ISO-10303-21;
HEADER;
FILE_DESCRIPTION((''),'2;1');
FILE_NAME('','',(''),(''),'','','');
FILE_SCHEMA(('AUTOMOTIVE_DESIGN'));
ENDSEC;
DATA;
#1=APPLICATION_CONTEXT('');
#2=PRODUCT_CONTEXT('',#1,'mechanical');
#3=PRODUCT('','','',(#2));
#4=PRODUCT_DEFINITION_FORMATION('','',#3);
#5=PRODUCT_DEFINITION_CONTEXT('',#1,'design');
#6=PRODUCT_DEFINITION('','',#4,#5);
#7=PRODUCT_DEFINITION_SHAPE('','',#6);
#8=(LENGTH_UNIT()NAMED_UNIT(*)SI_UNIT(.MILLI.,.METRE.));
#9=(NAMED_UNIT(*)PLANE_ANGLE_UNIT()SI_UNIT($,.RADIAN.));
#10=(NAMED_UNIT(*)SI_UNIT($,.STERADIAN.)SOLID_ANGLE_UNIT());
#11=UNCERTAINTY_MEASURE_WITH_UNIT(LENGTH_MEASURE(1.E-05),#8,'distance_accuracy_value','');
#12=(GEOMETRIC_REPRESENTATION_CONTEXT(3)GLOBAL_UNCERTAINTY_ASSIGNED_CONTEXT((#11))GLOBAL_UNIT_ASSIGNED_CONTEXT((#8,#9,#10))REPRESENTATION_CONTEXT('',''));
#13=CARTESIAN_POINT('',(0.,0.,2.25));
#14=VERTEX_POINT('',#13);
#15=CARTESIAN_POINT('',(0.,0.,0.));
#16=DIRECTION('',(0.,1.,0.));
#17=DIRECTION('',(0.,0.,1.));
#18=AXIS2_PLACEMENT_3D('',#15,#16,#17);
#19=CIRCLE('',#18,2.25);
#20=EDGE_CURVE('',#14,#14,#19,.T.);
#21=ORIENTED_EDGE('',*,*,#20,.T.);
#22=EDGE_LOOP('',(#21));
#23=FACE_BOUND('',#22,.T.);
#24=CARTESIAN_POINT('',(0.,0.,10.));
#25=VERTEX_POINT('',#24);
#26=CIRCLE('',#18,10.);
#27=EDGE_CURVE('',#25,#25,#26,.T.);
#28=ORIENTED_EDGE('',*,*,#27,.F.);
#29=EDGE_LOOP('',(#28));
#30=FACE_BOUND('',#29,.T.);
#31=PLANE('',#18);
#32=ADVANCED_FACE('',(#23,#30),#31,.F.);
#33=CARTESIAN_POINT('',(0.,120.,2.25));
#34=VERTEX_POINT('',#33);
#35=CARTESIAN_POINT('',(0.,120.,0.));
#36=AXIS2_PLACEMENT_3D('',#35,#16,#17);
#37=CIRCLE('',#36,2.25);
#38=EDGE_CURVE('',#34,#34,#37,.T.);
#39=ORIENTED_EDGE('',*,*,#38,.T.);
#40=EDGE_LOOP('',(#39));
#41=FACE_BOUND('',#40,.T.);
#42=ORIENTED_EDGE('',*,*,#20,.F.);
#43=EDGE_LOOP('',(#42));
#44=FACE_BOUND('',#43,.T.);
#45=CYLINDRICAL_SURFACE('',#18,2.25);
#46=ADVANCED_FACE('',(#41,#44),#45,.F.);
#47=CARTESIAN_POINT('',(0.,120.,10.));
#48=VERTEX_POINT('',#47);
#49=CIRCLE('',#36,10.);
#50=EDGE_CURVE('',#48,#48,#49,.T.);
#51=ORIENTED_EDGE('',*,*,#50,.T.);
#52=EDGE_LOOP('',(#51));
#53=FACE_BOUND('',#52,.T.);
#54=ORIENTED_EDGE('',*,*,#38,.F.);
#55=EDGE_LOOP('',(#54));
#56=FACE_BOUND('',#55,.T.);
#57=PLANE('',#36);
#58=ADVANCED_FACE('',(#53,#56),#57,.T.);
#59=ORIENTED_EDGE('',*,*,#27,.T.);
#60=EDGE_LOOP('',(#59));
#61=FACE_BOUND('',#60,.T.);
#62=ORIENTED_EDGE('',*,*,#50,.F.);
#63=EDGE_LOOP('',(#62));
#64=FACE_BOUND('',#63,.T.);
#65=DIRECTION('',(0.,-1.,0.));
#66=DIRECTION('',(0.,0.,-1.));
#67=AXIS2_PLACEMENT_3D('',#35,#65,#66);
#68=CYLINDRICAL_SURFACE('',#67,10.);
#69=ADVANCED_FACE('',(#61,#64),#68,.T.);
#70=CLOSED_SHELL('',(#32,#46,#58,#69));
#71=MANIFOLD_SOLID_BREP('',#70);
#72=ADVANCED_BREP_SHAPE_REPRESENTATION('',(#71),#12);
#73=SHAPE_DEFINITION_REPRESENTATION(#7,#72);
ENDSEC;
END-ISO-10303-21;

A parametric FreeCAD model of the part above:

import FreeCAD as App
import Part
import Sketcher

V = App.Vector

doc = App.newDocument("Part")
body = doc.addObject("PartDesign::Body", "Body")

sketch1 = body.newObject("Sketcher::SketchObject", "Sketch")
sketch1.AttachmentSupport = (doc.getObject("XZ_Plane"), [""])
sketch1.MapMode = "FlatFace"
sketch1.addGeometry(Part.Circle(V(0, 0, 0), V(0, 0, 1), 10), False)
sketch1.addConstraint(Sketcher.Constraint("Coincident", 0, 3, -1, 1))
sketch1.addConstraint(Sketcher.Constraint("Diameter", 0, 20.0))
pad1 = body.newObject("PartDesign::Pad", "Pad")
pad1.Profile = sketch1
pad1.Length = 120
pad1.Reversed = True

sketch2 = body.newObject("Sketcher::SketchObject", "Sketch001")
sketch2.AttachmentSupport = (doc.getObject("XZ_Plane"), [""])
sketch2.MapMode = "FlatFace"
sketch2.AttachmentOffset = App.Placement(V(0, 0, -120), App.Rotation())
sketch2.addGeometry(Part.Circle(V(0, 0, 0), V(0, 0, 1), 2.2), False)
sketch2.addConstraint(Sketcher.Constraint("Coincident", 0, 3, -1, 1))
sketch2.addConstraint(Sketcher.Constraint("Diameter", 0, 4.5))
pocket1 = body.newObject("PartDesign::Pocket", "Pocket")
pocket1.Profile = sketch2
pocket1.Length = 120
pocket1.Reversed = True

doc.recompute()
